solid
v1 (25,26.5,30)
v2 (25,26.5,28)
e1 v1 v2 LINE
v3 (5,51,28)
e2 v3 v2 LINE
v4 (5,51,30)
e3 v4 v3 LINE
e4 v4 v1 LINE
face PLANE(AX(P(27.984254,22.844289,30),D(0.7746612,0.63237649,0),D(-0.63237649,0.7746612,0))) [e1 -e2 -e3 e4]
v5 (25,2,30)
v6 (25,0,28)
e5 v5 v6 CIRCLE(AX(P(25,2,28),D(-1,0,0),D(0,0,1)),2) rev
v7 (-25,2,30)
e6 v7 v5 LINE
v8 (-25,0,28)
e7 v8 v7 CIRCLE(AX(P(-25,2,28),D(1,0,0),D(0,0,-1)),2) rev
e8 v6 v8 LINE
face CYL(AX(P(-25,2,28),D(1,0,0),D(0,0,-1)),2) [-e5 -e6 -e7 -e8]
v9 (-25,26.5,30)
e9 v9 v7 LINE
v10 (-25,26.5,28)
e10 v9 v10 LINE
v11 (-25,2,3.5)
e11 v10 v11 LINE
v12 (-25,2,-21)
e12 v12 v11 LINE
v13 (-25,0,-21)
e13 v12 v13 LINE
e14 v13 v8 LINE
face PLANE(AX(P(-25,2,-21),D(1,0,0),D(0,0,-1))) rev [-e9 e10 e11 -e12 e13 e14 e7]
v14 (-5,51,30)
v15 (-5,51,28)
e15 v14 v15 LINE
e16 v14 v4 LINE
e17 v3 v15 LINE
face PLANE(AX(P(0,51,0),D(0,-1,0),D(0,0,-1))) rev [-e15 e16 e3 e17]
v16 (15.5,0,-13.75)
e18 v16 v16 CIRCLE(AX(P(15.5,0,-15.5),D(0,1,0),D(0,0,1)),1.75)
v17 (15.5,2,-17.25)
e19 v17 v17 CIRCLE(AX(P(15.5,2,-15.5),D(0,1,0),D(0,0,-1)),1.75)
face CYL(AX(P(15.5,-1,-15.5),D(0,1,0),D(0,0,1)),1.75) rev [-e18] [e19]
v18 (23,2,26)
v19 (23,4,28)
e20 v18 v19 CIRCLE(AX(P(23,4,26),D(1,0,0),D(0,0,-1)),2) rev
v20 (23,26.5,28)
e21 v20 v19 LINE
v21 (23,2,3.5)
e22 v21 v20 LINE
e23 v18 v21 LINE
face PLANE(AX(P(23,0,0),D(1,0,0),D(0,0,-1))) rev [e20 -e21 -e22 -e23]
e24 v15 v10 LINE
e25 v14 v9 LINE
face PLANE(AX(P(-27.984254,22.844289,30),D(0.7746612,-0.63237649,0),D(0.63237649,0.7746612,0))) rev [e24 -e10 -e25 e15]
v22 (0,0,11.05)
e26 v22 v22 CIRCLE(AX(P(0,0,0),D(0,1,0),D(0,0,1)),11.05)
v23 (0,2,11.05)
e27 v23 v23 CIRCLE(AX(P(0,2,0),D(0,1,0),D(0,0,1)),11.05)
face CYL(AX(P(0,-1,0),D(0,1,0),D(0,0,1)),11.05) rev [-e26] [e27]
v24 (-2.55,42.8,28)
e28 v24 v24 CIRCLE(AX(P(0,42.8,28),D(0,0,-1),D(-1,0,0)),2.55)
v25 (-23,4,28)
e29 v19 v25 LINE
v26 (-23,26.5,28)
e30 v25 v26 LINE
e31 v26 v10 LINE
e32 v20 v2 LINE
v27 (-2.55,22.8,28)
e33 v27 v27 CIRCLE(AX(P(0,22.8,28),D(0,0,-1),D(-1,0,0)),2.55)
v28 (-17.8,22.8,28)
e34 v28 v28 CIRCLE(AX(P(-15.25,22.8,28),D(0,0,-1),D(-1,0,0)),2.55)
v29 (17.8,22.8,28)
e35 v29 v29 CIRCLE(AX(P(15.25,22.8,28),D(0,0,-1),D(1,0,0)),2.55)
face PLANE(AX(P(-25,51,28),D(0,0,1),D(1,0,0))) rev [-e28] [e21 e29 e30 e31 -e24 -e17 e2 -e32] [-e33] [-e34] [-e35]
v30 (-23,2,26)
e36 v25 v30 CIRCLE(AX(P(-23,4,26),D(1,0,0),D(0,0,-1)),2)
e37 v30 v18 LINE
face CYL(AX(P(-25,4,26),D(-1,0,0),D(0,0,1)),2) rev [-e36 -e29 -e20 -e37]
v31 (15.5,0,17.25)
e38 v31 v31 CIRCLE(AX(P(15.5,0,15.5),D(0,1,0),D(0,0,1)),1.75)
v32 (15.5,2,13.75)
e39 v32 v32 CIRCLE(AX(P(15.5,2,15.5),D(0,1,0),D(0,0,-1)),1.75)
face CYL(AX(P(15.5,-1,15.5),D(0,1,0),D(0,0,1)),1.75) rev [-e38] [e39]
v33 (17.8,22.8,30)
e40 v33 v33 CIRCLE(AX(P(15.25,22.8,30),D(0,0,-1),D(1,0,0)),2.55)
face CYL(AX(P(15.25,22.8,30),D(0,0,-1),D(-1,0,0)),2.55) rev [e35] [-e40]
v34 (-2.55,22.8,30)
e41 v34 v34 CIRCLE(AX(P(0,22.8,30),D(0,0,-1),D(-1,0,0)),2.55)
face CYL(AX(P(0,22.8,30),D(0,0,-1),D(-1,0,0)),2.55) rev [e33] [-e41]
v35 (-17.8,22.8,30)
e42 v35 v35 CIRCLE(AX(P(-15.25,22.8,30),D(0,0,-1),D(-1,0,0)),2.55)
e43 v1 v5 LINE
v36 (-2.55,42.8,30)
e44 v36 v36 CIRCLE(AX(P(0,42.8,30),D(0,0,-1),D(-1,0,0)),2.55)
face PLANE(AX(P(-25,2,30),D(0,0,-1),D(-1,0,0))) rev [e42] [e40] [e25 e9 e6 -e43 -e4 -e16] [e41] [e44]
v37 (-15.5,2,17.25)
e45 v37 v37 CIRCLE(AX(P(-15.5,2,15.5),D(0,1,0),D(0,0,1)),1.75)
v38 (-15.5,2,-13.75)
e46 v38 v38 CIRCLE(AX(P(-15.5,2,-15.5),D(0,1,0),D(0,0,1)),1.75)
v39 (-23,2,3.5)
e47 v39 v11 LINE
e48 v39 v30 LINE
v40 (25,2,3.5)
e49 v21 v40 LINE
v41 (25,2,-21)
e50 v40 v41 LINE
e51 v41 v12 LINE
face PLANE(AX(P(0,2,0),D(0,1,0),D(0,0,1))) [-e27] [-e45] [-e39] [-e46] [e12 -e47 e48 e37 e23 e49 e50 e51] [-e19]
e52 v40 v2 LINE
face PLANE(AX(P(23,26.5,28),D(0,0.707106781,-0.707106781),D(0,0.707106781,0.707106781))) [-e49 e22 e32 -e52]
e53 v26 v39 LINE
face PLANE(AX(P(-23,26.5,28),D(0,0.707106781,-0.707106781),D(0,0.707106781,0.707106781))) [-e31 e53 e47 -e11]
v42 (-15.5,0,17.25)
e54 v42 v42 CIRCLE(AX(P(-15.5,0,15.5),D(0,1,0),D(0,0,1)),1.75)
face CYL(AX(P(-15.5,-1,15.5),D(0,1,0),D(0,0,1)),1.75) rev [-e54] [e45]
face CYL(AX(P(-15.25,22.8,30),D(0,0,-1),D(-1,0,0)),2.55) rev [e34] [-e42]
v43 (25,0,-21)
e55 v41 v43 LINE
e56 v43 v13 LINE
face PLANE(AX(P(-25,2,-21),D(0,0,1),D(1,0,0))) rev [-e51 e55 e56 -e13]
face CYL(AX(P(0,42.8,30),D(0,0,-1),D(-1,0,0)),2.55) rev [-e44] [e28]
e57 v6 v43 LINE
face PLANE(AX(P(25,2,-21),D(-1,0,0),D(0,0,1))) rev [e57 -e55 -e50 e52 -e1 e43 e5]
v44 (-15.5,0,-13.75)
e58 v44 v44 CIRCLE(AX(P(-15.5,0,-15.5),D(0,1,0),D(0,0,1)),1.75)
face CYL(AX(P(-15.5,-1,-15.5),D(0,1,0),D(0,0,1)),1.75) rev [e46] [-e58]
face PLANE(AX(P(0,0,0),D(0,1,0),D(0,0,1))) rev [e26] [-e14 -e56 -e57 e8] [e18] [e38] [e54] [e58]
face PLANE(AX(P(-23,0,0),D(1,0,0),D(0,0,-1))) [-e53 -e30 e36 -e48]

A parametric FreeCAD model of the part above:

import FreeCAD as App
import Part
import Sketcher

V = App.Vector


def edges_at(feature, points):
    """Names of the edges that pass closest to the given points."""
    edges = feature.Shape.Edges
    near = lambda p: min(range(len(edges)), key=lambda i: edges[i].distToShape(Part.Vertex(*p))[0])
    return sorted({f"Edge{near(p) + 1}" for p in points})

doc = App.newDocument("Part")
body = doc.addObject("PartDesign::Body", "Body")

# Sketch on XZ plane
sketch1 = body.newObject("Sketcher::SketchObject", "Sketch")
sketch1.AttachmentSupport = (doc.getObject("XZ_Plane"), [""])
sketch1.MapMode = "FlatFace"
sketch1.addGeometry([
    Part.LineSegment(V(-25, -21, 0), V(-25, 30, 0)),
    Part.LineSegment(V(-25, 30, 0), V(25, 30, 0)),
    Part.LineSegment(V(25, 30, 0), V(25, -21, 0)),
    Part.LineSegment(V(25, -21, 0), V(-25, -21, 0)),
], False)
sketch1.addConstraint([
    Sketcher.Constraint("Coincident", 0, 2, 1, 1),
    Sketcher.Constraint("Coincident", 1, 2, 2, 1),
    Sketcher.Constraint("Coincident", 2, 2, 3, 1),
    Sketcher.Constraint("Coincident", 3, 2, 0, 1),
    Sketcher.Constraint("Vertical", 0),
    Sketcher.Constraint("Horizontal", 1),
    Sketcher.Constraint("Vertical", 2),
    Sketcher.Constraint("Horizontal", 3),
    Sketcher.Constraint("DistanceX", 1, 1, 1, 2, 50.0),
    Sketcher.Constraint("DistanceY", 0, 1, 0, 2, 51.0),
    Sketcher.Constraint("DistanceX", 0, 2, -1, 1, 25.0),
    Sketcher.Constraint("DistanceY", -1, 1, 0, 2, 30.0),
])
pad1 = body.newObject("PartDesign::Pad", "Pad")
pad1.Profile = sketch1
pad1.Length = 2
pad1.Reversed = True

# Sketch on XZ plane
sketch2 = body.newObject("Sketcher::SketchObject", "Sketch001")
sketch2.AttachmentSupport = (doc.getObject("XZ_Plane"), [""])
sketch2.MapMode = "FlatFace"
sketch2.AttachmentOffset = App.Placement(V(0, 0, -2), App.Rotation())
sketch2.addGeometry([
    Part.Circle(V(0, 0, 0), V(0, 0, 1), 11.1),  # 0
    Part.Circle(V(-15.5, -15.5, 0), V(0, 0, 1), 1.8),  # 1
    Part.Circle(V(-15.5, 15.5, 0), V(0, 0, 1), 1.8),  # 2
    Part.Circle(V(15.5, 15.5, 0), V(0, 0, 1), 1.8),  # 3
    Part.Circle(V(15.5, -15.5, 0), V(0, 0, 1), 1.8),  # 4
], False)
sketch2.addConstraint([
    Sketcher.Constraint("Coincident", 0, 3, -1, 1),
    Sketcher.Constraint("Equal", 1, 2),
    Sketcher.Constraint("Equal", 2, 3),
    Sketcher.Constraint("Equal", 3, 4),
    Sketcher.Constraint("Symmetric", 1, 3, 3, 3, -1, 1),
    Sketcher.Constraint("Symmetric", 2, 3, 4, 3, -1, 1),
    Sketcher.Constraint("Symmetric", 2, 3, 3, 3, -2),
    Sketcher.Constraint("Diameter", 0, 22.1),
    Sketcher.Constraint("Diameter", 1, 3.5),
    Sketcher.Constraint("DistanceY", 1, 3, 2, 3, 31.0),
    Sketcher.Constraint("DistanceX", 2, 3, 3, 3, 31.0),
])
pocket1 = body.newObject("PartDesign::Pocket", "Pocket")
pocket1.Profile = sketch2
pocket1.Length = 3
pocket1.Reversed = True

# Sketch on XZ plane
sketch3 = body.newObject("Sketcher::SketchObject", "Sketch002")
sketch3.AttachmentSupport = (doc.getObject("XZ_Plane"), [""])
sketch3.MapMode = "FlatFace"
sketch3.AttachmentOffset = App.Placement(V(0, 0, -2), App.Rotation())
sketch3.addGeometry([
    Part.LineSegment(V(-25, 28, 0), V(-25, 30, 0)),
    Part.LineSegment(V(-25, 30, 0), V(25, 30, 0)),
    Part.LineSegment(V(25, 30, 0), V(25, 28, 0)),
    Part.LineSegment(V(25, 28, 0), V(-25, 28, 0)),
], False)
sketch3.addConstraint([
    Sketcher.Constraint("Coincident", 0, 2, 1, 1),
    Sketcher.Constraint("Coincident", 1, 2, 2, 1),
    Sketcher.Constraint("Coincident", 2, 2, 3, 1),
    Sketcher.Constraint("Coincident", 3, 2, 0, 1),
    Sketcher.Constraint("Vertical", 0),
    Sketcher.Constraint("Horizontal", 1),
    Sketcher.Constraint("Vertical", 2),
    Sketcher.Constraint("Horizontal", 3),
    Sketcher.Constraint("DistanceX", 1, 1, 1, 2, 50.0),
    Sketcher.Constraint("DistanceY", 0, 1, 0, 2, 2.0),
    Sketcher.Constraint("DistanceX", 0, 2, -1, 1, 25.0),
    Sketcher.Constraint("DistanceY", -1, 1, 0, 2, 30.0),
])
pad2 = body.newObject("PartDesign::Pad", "Pad001")
pad2.Profile = sketch3
pad2.Length = 49
pad2.Reversed = True

# Sketch on YZ plane
sketch4 = body.newObject("Sketcher::SketchObject", "Sketch003")
sketch4.AttachmentSupport = (doc.getObject("YZ_Plane"), [""])
sketch4.MapMode = "FlatFace"
sketch4.AttachmentOffset = App.Placement(V(0, 0, 25), App.Rotation())
sketch4.addGeometry([
    Part.LineSegment(V(2, 4, 0), V(26, 28, 0)),
    Part.LineSegment(V(26, 28, 0), V(2, 28, 0)),
    Part.LineSegment(V(2, 28, 0), V(2, 4, 0)),
], False)
sketch4.addConstraint([
    Sketcher.Constraint("Coincident", 0, 2, 1, 1),
    Sketcher.Constraint("Coincident", 1, 2, 2, 1),
    Sketcher.Constraint("Coincident", 2, 2, 0, 1),
    Sketcher.Constraint("Horizontal", 1),
    Sketcher.Constraint("Vertical", 2),
    Sketcher.Constraint("Equal", 1, 2),
    Sketcher.Constraint("DistanceX", 1, 2, 1, 1, 24.5),
    Sketcher.Constraint("DistanceY", -1, 1, 0, 2, 28.0),
    Sketcher.Constraint("DistanceX", -1, 1, 1, 2, 2.0),
])
pad3 = body.newObject("PartDesign::Pad", "Pad002")
pad3.Profile = sketch4
pad3.Length = 2
pad3.Reversed = True

# Sketch on YZ plane
sketch5 = body.newObject("Sketcher::SketchObject", "Sketch004")
sketch5.AttachmentSupport = (doc.getObject("YZ_Plane"), [""])
sketch5.MapMode = "FlatFace"
sketch5.AttachmentOffset = App.Placement(V(0, 0, -25), App.Rotation())
sketch5.addGeometry([
    Part.LineSegment(V(26, 28, 0), V(2, 4, 0)),
    Part.LineSegment(V(2, 4, 0), V(2, 28, 0)),
    Part.LineSegment(V(2, 28, 0), V(26, 28, 0)),
], False)
sketch5.addConstraint([
    Sketcher.Constraint("Coincident", 0, 2, 1, 1),
    Sketcher.Constraint("Coincident", 1, 2, 2, 1),
    Sketcher.Constraint("Coincident", 2, 2, 0, 1),
    Sketcher.Constraint("Vertical", 1),
    Sketcher.Constraint("Horizontal", 2),
    Sketcher.Constraint("Equal", 2, 1),
    Sketcher.Constraint("DistanceX", 2, 1, 2, 2, 24.5),
    Sketcher.Constraint("DistanceX", -1, 1, 0, 2, 2.0),
    Sketcher.Constraint("DistanceY", -1, 1, 1, 2, 28.0),
])
pad4 = body.newObject("PartDesign::Pad", "Pad003")
pad4.Profile = sketch5
pad4.Length = 2

# Sketch on XY plane
sketch6 = body.newObject("Sketcher::SketchObject", "Sketch005")
sketch6.AttachmentSupport = (doc.getObject("XY_Plane"), [""])
sketch6.MapMode = "FlatFace"
sketch6.AttachmentOffset = App.Placement(V(0, 0, 28), App.Rotation())
sketch6.addGeometry([
    Part.Circle(V(0, 22.8, 0), V(0, 0, 1), 2.5),  # 0
    Part.Circle(V(0, 42.8, 0), V(0, 0, 1), 2.5),  # 1
    Part.Circle(V(-15.2, 22.8, 0), V(0, 0, 1), 2.5),  # 2
    Part.Circle(V(-15.2, 42.8, 0), V(0, 0, 1), 2.5),  # 3
    Part.Circle(V(15.2, 42.8, 0), V(0, 0, 1), 2.5),  # 4
    Part.Circle(V(15.2, 22.8, 0), V(0, 0, 1), 2.5),  # 5
], False)
sketch6.addConstraint([
    Sketcher.Constraint("Equal", 0, 1),
    Sketcher.Constraint("Equal", 1, 2),
    Sketcher.Constraint("Equal", 2, 3),
    Sketcher.Constraint("Equal", 3, 4),
    Sketcher.Constraint("Equal", 4, 5),
    Sketcher.Constraint("Symmetric", 3, 3, 4, 3, -2),
    Sketcher.Constraint("Symmetric", 2, 3, 5, 3, -2),
    Sketcher.Constraint("PointOnObject", 0, 3, -2),
    Sketcher.Constraint("PointOnObject", 1, 3, -2),
    Sketcher.Constraint("Horizontal", 0, 3, 2, 3),
    Sketcher.Constraint("Horizontal", 1, 3, 3, 3),
    Sketcher.Constraint("Vertical", 2, 3, 3, 3),
    Sketcher.Constraint("Diameter", 0, 5.1),
    Sketcher.Constraint("DistanceY", 0, 3, 1, 3, 20.0),
    Sketcher.Constraint("DistanceY", -1, 1, 0, 3, 22.8),
    Sketcher.Constraint("DistanceX", 3, 3, 4, 3, 30.5),
])
pocket2 = body.newObject("PartDesign::Pocket", "Pocket001")
pocket2.Profile = sketch6
pocket2.Length = 2
pocket2.Reversed = True
doc.recompute()

fillet = body.newObject("PartDesign::Fillet", "Fillet")
fillet.Base = (pocket2, edges_at(pocket2, [(0, 0, 30), (0, 2, 28)]))
fillet.Radius = 2

# Sketch on XY plane
sketch7 = body.newObject("Sketcher::SketchObject", "Sketch006")
sketch7.AttachmentSupport = (doc.getObject("XY_Plane"), [""])
sketch7.MapMode = "FlatFace"
sketch7.AttachmentOffset = App.Placement(V(0, 0, 28), App.Rotation())
sketch7.addGeometry([
    Part.LineSegment(V(-25, 51, 0), V(-5, 51, 0)),  # 0
    Part.LineSegment(V(-5, 51, 0), V(-25, 26.5, 0)),  # 1
    Part.LineSegment(V(-25, 26.5, 0), V(-25, 51, 0)),  # 2
    Part.Circle(V(-15.2, 42.8, 0), V(0, 0, 1), 2.5),  # 3
    Part.LineSegment(V(25, 26.5, 0), V(5, 51, 0)),  # 4
    Part.LineSegment(V(5, 51, 0), V(25, 51, 0)),  # 5
    Part.LineSegment(V(25, 51, 0), V(25, 26.5, 0)),  # 6
    Part.Circle(V(15.2, 42.8, 0), V(0, 0, 1), 2.5),  # 7
], False)
sketch7.addConstraint([
    Sketcher.Constraint("Coincident", 0, 2, 1, 1),
    Sketcher.Constraint("Coincident", 1, 2, 2, 1),
    Sketcher.Constraint("Coincident", 2, 2, 0, 1),
    Sketcher.Constraint("Coincident", 4, 2, 5, 1),
    Sketcher.Constraint("Coincident", 5, 2, 6, 1),
    Sketcher.Constraint("Coincident", 6, 2, 4, 1),
    Sketcher.Constraint("Horizontal", 0),
    Sketcher.Constraint("Vertical", 2),
    Sketcher.Constraint("Horizontal", 5),
    Sketcher.Constraint("Vertical", 6),
    Sketcher.Constraint("Equal", 3, 7),
    Sketcher.Constraint("Symmetric", 3, 3, 7, 3, -2),
    Sketcher.Constraint("Symmetric", 0, 2, 4, 2, -2),
    Sketcher.Constraint("Symmetric", 1, 2, 6, 2, -2),
    Sketcher.Constraint("Diameter", 3, 5.1),
    Sketcher.Constraint("DistanceX", 0, 1, 0, 2, 20.0),
    Sketcher.Constraint("DistanceY", 2, 1, 2, 2, 24.5),
    Sketcher.Constraint("DistanceX", 0, 2, -1, 1, 5.0),
    Sketcher.Constraint("DistanceY", -1, 1, 0, 2, 51.0),
    Sketcher.Constraint("DistanceY", -1, 1, 3, 3, 42.8),
    Sketcher.Constraint("DistanceX", 3, 3, 7, 3, 30.5),
])
pocket3 = body.newObject("PartDesign::Pocket", "Pocket002")
pocket3.Profile = sketch7
pocket3.Length = 2
pocket3.Reversed = True

doc.recompute()
